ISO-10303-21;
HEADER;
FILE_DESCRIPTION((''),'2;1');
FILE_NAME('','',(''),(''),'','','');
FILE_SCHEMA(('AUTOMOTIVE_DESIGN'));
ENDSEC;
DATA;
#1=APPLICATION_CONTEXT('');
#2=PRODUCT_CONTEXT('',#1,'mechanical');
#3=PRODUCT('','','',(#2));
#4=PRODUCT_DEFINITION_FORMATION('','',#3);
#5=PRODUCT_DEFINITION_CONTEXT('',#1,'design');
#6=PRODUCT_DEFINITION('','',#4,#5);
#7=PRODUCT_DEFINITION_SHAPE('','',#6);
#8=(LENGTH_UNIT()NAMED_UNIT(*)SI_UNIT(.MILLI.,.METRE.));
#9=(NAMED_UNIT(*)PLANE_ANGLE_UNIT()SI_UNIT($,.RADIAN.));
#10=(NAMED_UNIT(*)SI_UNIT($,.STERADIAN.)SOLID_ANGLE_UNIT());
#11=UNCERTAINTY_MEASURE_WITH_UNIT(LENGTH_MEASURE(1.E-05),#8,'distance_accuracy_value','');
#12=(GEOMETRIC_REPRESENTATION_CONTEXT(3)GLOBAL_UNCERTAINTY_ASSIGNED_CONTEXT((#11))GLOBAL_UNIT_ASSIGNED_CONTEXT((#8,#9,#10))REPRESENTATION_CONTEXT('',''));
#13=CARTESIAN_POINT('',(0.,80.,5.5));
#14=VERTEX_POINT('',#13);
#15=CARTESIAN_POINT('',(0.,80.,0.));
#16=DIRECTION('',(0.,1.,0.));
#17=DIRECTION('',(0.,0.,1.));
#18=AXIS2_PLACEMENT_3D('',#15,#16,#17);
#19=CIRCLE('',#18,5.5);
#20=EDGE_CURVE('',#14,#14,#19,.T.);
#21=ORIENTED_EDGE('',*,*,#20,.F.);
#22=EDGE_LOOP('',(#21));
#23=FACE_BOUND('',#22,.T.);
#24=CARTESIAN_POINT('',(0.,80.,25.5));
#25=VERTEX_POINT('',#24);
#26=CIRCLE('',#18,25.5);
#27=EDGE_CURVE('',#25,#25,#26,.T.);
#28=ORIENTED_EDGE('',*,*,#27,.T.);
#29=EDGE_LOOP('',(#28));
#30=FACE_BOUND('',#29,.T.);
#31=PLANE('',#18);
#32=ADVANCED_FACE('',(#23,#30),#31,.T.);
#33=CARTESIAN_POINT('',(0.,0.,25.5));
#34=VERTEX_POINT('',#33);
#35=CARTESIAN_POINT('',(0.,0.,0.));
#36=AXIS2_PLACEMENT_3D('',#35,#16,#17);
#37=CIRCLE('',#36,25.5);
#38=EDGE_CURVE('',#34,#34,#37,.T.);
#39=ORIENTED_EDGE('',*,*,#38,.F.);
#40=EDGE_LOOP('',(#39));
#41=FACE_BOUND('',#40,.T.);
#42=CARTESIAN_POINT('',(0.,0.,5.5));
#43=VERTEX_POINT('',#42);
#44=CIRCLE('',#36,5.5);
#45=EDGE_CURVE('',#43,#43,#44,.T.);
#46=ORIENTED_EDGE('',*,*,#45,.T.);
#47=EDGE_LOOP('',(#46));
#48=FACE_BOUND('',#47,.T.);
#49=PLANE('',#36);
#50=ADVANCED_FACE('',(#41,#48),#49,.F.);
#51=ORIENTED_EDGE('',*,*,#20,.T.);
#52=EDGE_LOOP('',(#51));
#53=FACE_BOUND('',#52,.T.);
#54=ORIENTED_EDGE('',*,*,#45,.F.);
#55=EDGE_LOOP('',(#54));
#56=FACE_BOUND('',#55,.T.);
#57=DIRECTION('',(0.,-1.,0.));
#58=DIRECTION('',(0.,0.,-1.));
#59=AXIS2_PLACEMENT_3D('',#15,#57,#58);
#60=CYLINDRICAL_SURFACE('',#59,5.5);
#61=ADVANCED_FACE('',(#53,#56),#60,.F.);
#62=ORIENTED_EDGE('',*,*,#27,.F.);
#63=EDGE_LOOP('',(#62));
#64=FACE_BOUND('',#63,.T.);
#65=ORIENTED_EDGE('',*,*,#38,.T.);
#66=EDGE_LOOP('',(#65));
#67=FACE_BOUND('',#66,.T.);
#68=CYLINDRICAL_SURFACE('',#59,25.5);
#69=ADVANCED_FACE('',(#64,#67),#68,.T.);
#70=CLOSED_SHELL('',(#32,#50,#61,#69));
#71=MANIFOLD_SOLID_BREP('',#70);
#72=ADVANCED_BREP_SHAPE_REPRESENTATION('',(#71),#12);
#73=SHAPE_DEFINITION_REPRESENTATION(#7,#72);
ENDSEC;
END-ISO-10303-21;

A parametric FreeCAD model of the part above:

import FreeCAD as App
import Part
import Sketcher
from FreeCAD import Vector
Q = App.Units.Quantity

doc = App.newDocument("Part")
body = doc.addObject("PartDesign::Body", "Body")

# Sketch on XZ plane
sketch1 = body.newObject("Sketcher::SketchObject", "Sketch")
sketch1.AttachmentSupport = (doc.getObject("XZ_Plane"), [""])
sketch1.MapMode = "FlatFace"
sketch1.addGeometry(Part.Circle(Vector(0, 0, 0), Vector(0, 0, 1), 26), False)
sketch1.addGeometry(Part.Circle(Vector(0, 0, 0), Vector(0, 0, 1), 6), False)
sketch1.addConstraint(Sketcher.Constraint("Coincident", 0, 3, -1, 1))
sketch1.addConstraint(Sketcher.Constraint("Coincident", 1, 3, -1, 1))
sketch1.addConstraint(Sketcher.Constraint("Diameter", 0, Q("51 mm")))
sketch1.addConstraint(Sketcher.Constraint("Diameter", 1, Q("11 mm")))
pad1 = body.newObject("PartDesign::Pad", "Pad")
pad1.Profile = sketch1
pad1.Length = 80
pad1.Reversed = True

doc.recompute()
